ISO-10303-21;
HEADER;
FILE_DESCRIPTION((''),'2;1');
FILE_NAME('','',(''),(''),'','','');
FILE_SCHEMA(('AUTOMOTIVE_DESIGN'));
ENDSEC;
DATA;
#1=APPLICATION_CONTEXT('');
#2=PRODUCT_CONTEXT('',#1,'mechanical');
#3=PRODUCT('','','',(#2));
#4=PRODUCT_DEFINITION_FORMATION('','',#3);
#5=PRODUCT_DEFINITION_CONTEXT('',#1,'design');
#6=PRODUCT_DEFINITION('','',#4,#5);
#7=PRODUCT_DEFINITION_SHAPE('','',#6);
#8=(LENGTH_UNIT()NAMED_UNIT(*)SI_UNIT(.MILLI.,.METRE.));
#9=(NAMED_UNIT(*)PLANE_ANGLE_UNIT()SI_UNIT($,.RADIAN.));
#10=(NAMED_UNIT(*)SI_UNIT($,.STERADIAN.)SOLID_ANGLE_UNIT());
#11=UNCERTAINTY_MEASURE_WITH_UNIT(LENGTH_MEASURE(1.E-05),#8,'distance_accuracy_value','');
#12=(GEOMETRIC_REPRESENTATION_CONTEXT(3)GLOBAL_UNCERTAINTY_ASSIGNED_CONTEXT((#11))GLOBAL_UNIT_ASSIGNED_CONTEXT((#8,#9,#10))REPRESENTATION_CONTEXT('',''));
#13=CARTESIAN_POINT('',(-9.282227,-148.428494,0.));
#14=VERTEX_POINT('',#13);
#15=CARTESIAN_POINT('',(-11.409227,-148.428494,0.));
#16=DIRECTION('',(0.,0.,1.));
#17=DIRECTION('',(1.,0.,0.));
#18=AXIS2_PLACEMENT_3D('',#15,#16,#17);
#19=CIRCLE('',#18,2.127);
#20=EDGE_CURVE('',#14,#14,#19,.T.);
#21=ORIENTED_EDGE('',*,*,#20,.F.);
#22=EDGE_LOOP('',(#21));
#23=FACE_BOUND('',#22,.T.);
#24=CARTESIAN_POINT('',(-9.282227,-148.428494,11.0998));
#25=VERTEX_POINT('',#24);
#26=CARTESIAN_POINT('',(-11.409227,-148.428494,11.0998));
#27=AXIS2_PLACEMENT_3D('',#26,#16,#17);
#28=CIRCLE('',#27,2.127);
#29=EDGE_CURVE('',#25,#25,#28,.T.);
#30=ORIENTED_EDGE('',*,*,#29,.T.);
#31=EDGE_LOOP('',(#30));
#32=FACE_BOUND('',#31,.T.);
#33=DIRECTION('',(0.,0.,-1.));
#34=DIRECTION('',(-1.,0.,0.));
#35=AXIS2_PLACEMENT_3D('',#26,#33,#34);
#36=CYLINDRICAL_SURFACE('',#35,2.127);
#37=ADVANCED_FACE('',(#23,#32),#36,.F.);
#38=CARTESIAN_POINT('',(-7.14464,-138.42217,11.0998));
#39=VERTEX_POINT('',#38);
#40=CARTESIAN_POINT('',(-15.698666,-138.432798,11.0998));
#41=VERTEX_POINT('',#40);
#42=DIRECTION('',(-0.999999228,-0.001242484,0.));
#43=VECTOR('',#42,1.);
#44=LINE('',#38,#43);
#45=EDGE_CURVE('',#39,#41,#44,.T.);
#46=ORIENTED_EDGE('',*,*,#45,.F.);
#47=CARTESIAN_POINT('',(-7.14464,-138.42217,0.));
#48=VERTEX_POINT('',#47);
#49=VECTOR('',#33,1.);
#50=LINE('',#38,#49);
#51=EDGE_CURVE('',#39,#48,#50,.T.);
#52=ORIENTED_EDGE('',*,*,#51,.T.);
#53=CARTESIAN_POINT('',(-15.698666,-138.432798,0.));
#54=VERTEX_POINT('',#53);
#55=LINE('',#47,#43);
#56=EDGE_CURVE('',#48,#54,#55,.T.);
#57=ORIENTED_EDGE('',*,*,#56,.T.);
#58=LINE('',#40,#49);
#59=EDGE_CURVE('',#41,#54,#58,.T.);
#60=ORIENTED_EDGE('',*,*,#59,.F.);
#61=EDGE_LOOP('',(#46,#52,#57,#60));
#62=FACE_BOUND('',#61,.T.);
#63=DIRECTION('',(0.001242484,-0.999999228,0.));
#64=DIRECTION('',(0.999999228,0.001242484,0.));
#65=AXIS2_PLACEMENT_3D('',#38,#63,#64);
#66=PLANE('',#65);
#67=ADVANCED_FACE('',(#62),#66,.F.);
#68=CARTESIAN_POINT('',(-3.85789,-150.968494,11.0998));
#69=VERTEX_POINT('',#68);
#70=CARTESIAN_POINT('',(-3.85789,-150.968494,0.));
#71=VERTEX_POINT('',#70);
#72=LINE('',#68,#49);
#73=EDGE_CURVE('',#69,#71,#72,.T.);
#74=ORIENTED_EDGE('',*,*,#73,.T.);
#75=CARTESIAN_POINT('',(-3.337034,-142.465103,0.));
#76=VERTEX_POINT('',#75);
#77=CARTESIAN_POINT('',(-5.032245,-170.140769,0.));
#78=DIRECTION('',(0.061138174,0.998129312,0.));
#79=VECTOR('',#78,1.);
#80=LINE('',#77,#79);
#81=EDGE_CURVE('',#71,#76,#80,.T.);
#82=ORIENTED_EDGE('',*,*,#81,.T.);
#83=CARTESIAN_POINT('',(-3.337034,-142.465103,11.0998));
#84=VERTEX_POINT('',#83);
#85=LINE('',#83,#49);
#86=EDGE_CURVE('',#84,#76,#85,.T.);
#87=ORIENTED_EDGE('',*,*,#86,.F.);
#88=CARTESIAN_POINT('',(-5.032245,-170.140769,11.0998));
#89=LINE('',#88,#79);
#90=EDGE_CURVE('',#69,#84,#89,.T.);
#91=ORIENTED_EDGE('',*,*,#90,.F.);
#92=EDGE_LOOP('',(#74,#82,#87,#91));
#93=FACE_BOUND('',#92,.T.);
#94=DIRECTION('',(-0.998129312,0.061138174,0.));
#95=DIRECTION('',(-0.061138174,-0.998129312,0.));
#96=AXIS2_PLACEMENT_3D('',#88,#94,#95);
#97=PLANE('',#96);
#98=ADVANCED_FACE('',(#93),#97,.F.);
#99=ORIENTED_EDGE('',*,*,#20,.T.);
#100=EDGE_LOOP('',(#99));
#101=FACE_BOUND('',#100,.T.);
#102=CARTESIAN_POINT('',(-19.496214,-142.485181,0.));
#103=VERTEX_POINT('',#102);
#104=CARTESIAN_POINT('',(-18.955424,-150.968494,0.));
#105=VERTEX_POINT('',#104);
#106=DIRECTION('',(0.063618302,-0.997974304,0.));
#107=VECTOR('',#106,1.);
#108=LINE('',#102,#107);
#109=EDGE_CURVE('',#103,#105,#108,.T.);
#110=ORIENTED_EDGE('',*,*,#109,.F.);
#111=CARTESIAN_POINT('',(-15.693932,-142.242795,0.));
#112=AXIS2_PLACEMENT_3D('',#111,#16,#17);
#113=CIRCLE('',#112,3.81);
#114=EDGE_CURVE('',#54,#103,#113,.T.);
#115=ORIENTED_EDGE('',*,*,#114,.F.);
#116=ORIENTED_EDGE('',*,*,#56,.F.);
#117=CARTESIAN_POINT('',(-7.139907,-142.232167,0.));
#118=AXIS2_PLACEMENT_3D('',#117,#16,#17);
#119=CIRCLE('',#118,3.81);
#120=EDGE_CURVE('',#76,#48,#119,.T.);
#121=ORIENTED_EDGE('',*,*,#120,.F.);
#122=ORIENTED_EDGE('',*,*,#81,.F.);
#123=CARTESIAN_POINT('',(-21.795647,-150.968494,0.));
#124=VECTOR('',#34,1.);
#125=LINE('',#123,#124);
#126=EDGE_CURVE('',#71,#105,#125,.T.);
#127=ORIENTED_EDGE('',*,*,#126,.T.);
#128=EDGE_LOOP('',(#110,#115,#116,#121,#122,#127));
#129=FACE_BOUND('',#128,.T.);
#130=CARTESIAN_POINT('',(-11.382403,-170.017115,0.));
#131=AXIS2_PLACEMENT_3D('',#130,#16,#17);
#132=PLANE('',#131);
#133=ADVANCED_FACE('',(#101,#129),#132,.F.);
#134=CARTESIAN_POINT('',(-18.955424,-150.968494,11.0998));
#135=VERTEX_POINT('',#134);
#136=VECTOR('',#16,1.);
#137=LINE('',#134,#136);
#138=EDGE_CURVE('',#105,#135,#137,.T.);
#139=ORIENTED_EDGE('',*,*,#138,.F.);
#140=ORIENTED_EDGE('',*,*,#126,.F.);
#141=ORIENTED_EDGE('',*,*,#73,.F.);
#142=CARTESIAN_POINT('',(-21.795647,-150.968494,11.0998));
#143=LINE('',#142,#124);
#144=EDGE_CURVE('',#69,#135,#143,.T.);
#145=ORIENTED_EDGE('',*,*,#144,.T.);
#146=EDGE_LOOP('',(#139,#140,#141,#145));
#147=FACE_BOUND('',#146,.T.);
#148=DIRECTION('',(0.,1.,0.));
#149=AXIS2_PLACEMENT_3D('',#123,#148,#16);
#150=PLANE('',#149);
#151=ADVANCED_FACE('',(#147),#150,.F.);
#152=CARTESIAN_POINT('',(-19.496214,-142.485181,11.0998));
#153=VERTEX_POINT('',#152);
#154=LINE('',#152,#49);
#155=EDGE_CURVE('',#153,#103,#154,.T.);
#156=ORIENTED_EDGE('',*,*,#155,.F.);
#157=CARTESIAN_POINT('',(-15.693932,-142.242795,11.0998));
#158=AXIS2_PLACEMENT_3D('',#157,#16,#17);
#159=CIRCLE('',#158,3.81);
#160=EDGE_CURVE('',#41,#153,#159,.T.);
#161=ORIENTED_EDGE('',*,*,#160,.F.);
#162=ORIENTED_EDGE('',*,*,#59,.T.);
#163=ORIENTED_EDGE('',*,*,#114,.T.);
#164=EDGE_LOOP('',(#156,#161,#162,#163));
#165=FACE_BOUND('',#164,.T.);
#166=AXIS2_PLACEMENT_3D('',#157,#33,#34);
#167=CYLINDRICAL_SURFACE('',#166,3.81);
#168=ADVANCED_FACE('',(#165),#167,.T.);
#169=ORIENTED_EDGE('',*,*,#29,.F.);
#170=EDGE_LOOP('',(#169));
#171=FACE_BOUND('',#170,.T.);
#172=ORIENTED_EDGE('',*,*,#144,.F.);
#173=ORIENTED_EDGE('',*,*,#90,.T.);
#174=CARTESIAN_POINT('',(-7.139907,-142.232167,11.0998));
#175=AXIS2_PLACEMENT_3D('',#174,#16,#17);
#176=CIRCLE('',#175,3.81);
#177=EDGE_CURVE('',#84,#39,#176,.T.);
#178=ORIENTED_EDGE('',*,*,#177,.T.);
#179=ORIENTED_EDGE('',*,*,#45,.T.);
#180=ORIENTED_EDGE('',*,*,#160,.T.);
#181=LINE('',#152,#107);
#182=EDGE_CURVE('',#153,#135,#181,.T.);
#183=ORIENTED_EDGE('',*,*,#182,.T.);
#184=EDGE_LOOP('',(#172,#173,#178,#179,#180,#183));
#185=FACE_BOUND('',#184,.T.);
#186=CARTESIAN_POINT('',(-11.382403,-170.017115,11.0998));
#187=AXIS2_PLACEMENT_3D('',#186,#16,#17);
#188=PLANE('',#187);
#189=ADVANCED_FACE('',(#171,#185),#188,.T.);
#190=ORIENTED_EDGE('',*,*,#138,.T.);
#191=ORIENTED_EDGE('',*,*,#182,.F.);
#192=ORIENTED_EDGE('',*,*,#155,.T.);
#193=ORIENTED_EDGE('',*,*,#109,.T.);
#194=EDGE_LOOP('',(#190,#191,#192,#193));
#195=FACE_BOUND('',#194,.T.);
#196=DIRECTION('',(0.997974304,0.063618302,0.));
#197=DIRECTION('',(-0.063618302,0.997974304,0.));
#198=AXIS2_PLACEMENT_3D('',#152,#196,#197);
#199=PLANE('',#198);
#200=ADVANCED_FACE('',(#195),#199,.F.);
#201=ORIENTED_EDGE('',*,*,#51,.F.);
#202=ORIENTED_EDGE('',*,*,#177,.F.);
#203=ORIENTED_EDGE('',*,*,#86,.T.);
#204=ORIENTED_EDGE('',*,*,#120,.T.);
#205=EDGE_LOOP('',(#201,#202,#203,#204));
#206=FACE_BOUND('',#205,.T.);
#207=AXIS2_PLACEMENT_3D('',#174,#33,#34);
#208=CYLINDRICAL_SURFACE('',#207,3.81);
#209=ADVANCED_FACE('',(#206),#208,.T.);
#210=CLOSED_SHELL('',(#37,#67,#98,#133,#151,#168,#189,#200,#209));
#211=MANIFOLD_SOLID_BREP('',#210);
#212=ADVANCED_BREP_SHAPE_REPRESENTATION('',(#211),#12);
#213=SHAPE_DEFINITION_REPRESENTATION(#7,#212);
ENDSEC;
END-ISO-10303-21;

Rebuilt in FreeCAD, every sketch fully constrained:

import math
import FreeCAD as App
import Part
import Sketcher

V = App.Vector
Q = App.Units.Quantity

doc = App.newDocument("Part")
body = doc.addObject("PartDesign::Body", "Body")

sketch1 = body.newObject("Sketcher::SketchObject", "Sketch")
sketch1.AttachmentSupport = (doc.getObject("XY_Plane"), [""])
sketch1.MapMode = "FlatFace"
sketch1.addGeometry([
    Part.LineSegment(V(-5.032245, -170.140769, 0), V(-3.337034, -142.465103, 0)),
    Part.ArcOfCircle(Part.Circle(V(-7.139907, -142.232167, 0), V(0, 0, 1), 3.81), math.radians(-3.505145), math.radians(90.071189)),
    Part.LineSegment(V(-7.14464, -138.42217, 0), V(-15.698666, -138.432798, 0)),
    Part.ArcOfCircle(Part.Circle(V(-15.693932, -142.242795, 0), V(0, 0, 1), 3.81), math.radians(90.071189), math.radians(183.647523)),
    Part.LineSegment(V(-19.496214, -142.485181, 0), V(-17.732235, -170.156549, 0)),
    Part.ArcOfCircle(Part.Circle(V(-11.382403, -170.017115, 0), V(0, 0, 1), 6.351362), math.radians(-178.742065), math.radians(-1.115556)),
    Part.Circle(V(-11.380824, -171.288477, 0), V(0, 0, 1), 2.127),
    Part.Circle(V(-11.409227, -148.428494, 0), V(0, 0, 1), 2.127),
], False)
sketch1.addConstraint([
    Sketcher.Constraint("Coincident", 0, 2, 1, 1),
    Sketcher.Constraint("Coincident", 1, 2, 2, 1),
    Sketcher.Constraint("Coincident", 2, 2, 3, 1),
    Sketcher.Constraint("Coincident", 3, 2, 4, 1),
    Sketcher.Constraint("Coincident", 4, 2, 5, 1),
    Sketcher.Constraint("Coincident", 5, 2, 0, 1),
    Sketcher.Constraint("Radius", 1, Q("0.15 in")),
    Sketcher.Constraint("Radius", 3, Q("0.15 in")),
    Sketcher.Constraint("Diameter", 6, 4.254),
    Sketcher.Constraint("Diameter", 7, 4.254),
    Sketcher.Constraint("Radius", 5, 6.351362),
    Sketcher.Constraint("DistanceY", 2, 2, -1, 1, 138.432798),
    Sketcher.Constraint("DistanceY", 7, 3, 3, 3, 6.185699),
    Sketcher.Constraint("Distance", 2, 8.554032),
    Sketcher.Constraint("DistanceX", 3, 3, -1, 1, 15.693932),
    Sketcher.Constraint("DistanceX", 1, 2, -1, 1, 7.14464),
    Sketcher.Constraint("DistanceY", 1, 2, -1, 1, 138.42217),
    Sketcher.Constraint("DistanceY", 3, 2, -1, 1, 142.485181),
    Sketcher.Constraint("DistanceY", 4, 2, -1, 1, 170.156549),
    Sketcher.Constraint("DistanceY", 5, 2, -1, 1, 170.140769),
    Sketcher.Constraint("DistanceX", 3, 3, 5, 3, 4.311528),
    Sketcher.Constraint("DistanceY", 5, 3, 3, 3, 27.77432),
    Sketcher.Constraint("DistanceX", 5, 3, 6, 3, 0.00158),
    Sketcher.Constraint("DistanceY", 6, 3, 5, 3, 1.271361),
    Sketcher.Constraint("DistanceX", 7, 3, 1, 3, 4.26932),
    Sketcher.Constraint("DistanceY", 7, 3, 0, 2, 5.963391),
    Sketcher.Constraint("DistanceX", 5, 3, 0, 2, 8.045369),
])
pad1 = body.newObject("PartDesign::Pad", "Pad")
pad1.Profile = sketch1
pad1.Length = Q("0.437 in")

sketch2 = body.newObject("Sketcher::SketchObject", "Sketch001")
sketch2.AttachmentSupport = (doc.getObject("XY_Plane"), [""])
sketch2.MapMode = "FlatFace"
sketch2.AttachmentOffset = App.Placement(V(0, 0, 0.437 * 25.4), App.Rotation())
sketch2.addGeometry([
    Part.LineSegment(V(-22, -151, 0), V(-22, -182, 0)),
    Part.LineSegment(V(-22, -182, 0), V(2, -182, 0)),
    Part.LineSegment(V(2, -182, 0), V(2, -151, 0)),
    Part.LineSegment(V(2, -151, 0), V(-22, -151, 0)),
], False)
sketch2.addConstraint([
    Sketcher.Constraint("Coincident", 0, 2, 1, 1),
    Sketcher.Constraint("Coincident", 1, 2, 2, 1),
    Sketcher.Constraint("Coincident", 2, 2, 3, 1),
    Sketcher.Constraint("Coincident", 3, 2, 0, 1),
    Sketcher.Constraint("Vertical", 0),
    Sketcher.Constraint("Horizontal", 1),
    Sketcher.Constraint("Vertical", 2),
    Sketcher.Constraint("Horizontal", 3),
    Sketcher.Constraint("DistanceY", 0, 2, 0, 1, 30.856762),
    Sketcher.Constraint("DistanceX", 1, 1, 1, 2, 24.110565),
    Sketcher.Constraint("DistanceX", 0, 2, -1, 1, 21.795647),
    Sketcher.Constraint("DistanceY", 0, 2, -1, 1, 181.825256),
])
pocket1 = body.newObject("PartDesign::Pocket", "Pocket")
pocket1.Profile = sketch2
pocket1.Length = Q("0.437 in")

doc.recompute()
